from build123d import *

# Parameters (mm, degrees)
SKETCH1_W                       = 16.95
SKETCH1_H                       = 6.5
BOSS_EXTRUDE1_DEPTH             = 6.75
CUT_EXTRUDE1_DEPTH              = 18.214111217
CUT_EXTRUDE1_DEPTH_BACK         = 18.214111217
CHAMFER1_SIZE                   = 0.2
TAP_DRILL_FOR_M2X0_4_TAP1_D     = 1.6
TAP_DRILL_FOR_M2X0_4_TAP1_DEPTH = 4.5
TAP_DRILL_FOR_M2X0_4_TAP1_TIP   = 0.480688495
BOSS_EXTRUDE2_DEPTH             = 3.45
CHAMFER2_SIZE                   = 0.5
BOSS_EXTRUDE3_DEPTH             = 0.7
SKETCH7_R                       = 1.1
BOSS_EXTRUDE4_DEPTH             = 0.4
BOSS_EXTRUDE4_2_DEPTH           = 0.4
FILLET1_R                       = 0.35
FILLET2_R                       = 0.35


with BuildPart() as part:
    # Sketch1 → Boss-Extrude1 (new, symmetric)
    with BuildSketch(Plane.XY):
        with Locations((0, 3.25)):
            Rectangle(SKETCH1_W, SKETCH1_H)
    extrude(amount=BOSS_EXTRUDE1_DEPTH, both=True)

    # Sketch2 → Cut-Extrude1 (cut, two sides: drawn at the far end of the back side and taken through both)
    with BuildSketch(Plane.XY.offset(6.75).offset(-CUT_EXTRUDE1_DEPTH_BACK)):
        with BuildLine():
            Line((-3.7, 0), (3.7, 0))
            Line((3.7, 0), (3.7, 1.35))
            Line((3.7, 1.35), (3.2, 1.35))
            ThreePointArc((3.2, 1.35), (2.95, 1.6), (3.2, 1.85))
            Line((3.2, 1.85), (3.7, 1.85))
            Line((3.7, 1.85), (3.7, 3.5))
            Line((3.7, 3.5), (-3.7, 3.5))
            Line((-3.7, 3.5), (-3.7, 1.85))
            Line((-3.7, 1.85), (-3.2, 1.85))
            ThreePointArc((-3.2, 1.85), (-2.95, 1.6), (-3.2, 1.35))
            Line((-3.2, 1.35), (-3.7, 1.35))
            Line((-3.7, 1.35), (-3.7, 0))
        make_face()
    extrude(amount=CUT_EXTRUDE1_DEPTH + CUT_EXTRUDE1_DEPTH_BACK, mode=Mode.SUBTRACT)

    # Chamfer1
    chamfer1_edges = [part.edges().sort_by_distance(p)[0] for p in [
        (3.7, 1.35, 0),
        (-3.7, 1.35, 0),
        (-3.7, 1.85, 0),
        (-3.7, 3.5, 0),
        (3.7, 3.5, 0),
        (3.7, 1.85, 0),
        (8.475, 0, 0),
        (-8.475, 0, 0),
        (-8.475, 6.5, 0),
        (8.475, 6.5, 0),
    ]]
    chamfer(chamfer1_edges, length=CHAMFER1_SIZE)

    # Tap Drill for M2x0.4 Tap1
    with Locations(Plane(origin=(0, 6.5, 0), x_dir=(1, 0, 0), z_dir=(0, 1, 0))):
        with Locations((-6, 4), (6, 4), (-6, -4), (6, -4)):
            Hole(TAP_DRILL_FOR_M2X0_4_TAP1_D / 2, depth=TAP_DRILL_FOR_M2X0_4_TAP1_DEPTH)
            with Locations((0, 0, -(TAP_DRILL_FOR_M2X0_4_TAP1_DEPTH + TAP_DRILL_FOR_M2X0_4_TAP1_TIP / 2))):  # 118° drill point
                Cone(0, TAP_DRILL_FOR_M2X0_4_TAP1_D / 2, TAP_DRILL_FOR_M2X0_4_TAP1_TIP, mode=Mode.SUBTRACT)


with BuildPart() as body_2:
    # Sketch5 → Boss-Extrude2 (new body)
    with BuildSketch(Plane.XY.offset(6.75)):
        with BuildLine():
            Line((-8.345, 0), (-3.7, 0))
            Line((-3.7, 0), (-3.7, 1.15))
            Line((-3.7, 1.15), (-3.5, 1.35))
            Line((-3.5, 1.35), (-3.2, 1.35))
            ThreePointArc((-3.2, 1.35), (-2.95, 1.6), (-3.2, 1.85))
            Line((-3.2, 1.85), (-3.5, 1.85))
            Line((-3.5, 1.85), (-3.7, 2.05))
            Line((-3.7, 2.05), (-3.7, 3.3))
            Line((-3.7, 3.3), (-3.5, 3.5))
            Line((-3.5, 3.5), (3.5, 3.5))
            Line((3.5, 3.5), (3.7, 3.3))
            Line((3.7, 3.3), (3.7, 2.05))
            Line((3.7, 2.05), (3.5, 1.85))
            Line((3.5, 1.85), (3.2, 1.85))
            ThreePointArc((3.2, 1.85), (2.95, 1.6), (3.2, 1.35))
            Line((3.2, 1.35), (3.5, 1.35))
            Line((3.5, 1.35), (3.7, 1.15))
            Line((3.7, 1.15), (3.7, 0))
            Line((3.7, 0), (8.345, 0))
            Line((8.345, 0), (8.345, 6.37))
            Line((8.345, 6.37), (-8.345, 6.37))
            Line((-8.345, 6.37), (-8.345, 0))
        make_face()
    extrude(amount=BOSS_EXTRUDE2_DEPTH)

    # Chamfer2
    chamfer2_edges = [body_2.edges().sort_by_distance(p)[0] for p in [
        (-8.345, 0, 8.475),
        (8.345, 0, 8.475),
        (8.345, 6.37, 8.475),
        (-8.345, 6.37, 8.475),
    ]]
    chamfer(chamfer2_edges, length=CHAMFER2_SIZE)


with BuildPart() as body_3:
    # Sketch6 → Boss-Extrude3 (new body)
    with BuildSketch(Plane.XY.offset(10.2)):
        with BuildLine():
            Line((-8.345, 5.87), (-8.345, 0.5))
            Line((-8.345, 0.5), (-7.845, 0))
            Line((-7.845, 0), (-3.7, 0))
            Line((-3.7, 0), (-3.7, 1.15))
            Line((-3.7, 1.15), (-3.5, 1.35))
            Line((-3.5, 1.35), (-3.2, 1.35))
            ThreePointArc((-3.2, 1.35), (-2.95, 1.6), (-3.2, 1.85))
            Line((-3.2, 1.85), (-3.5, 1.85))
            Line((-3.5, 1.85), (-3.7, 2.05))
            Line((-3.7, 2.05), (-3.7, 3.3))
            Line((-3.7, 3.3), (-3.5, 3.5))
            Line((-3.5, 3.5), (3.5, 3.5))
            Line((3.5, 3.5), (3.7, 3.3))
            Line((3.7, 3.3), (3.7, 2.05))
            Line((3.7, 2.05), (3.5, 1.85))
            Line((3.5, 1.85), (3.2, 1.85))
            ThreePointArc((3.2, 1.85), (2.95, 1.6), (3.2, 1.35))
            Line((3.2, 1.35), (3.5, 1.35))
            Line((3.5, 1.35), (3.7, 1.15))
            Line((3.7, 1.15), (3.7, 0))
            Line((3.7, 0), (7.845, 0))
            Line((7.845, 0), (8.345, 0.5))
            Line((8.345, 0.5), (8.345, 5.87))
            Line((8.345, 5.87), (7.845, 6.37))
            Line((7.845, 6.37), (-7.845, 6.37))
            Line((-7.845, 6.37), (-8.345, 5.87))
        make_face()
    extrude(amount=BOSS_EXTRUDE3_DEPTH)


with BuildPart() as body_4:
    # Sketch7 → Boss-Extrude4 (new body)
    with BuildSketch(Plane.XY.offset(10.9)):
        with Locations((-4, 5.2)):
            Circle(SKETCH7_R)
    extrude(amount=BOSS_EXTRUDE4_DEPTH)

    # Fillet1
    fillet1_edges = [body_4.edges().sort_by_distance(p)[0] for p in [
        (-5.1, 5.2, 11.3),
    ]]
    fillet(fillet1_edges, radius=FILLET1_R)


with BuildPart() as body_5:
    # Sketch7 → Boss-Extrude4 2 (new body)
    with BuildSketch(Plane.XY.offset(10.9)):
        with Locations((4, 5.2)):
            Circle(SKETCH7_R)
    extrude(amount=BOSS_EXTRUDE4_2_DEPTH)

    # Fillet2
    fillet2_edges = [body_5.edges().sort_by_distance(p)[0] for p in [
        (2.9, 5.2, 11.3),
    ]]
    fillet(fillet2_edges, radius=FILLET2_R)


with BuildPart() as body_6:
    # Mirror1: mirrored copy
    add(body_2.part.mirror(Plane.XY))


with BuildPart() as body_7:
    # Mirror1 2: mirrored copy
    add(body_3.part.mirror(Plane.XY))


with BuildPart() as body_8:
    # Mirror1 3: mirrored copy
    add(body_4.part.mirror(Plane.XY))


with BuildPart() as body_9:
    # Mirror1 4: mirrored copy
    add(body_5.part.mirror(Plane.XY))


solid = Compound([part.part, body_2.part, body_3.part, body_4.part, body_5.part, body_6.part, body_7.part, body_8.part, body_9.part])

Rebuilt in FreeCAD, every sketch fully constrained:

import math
import FreeCAD as App
import Part
import Sketcher

V = App.Vector


def edges_at(feature, points):
    """Names of the edges that pass closest to the given points."""
    edges = feature.Shape.Edges
    near = lambda p: min(range(len(edges)), key=lambda i: edges[i].distToShape(Part.Vertex(*p))[0])
    return sorted({f"Edge{near(p) + 1}" for p in points})

doc = App.newDocument("Part")
body = doc.addObject("PartDesign::Body", "Body")

sketch1 = body.newObject("Sketcher::SketchObject", "Sketch")
sketch1.AttachmentSupport = (doc.getObject("XY_Plane"), [""])
sketch1.MapMode = "FlatFace"
sketch1.addGeometry([
    Part.LineSegment(V(-8.475, 6.5, 0), V(-8.475, 0, 0)),
    Part.LineSegment(V(-8.475, 0, 0), V(8.475, 0, 0)),
    Part.LineSegment(V(8.475, 0, 0), V(8.475, 6.5, 0)),
    Part.LineSegment(V(8.475, 6.5, 0), V(-8.475, 6.5, 0)),
], False)
sketch1.addConstraint([
    Sketcher.Constraint("Coincident", 0, 2, 1, 1),
    Sketcher.Constraint("Coincident", 1, 2, 2, 1),
    Sketcher.Constraint("Coincident", 2, 2, 3, 1),
    Sketcher.Constraint("Coincident", 3, 2, 0, 1),
    Sketcher.Constraint("Vertical", 0),
    Sketcher.Constraint("Horizontal", 1),
    Sketcher.Constraint("Vertical", 2),
    Sketcher.Constraint("Horizontal", 3),
    Sketcher.Constraint("Symmetric", 0, 2, 1, 2, -1, 1),
    Sketcher.Constraint("DistanceY", 0, 2, 0, 1, 6.5),
    Sketcher.Constraint("DistanceX", 1, 1, 1, 2, 16.95),
])
pad1 = body.newObject("PartDesign::Pad", "Pad")
pad1.Profile = sketch1
pad1.Length = 13.5
pad1.Midplane = True

sketch2 = body.newObject("Sketcher::SketchObject", "Sketch001")
sketch2.AttachmentSupport = (doc.getObject("XY_Plane"), [""])
sketch2.MapMode = "FlatFace"
sketch2.AttachmentOffset = App.Placement(V(0, 0, 6.75), App.Rotation())
sketch2.addGeometry([
    Part.LineSegment(V(-3.7, 0, 0), V(3.7, 0, 0)),
    Part.LineSegment(V(3.7, 0, 0), V(3.7, 1.35, 0)),
    Part.LineSegment(V(3.7, 1.35, 0), V(3.2, 1.35, 0)),
    Part.ArcOfCircle(Part.Circle(V(3.2, 1.6, 0), V(0, 0, 1), 0.25), math.radians(90), math.radians(270)),
    Part.LineSegment(V(3.2, 1.85, 0), V(3.7, 1.85, 0)),
    Part.LineSegment(V(3.7, 1.85, 0), V(3.7, 3.5, 0)),
    Part.LineSegment(V(3.7, 3.5, 0), V(-3.7, 3.5, 0)),
    Part.LineSegment(V(-3.7, 3.5, 0), V(-3.7, 1.85, 0)),
    Part.LineSegment(V(-3.7, 1.85, 0), V(-3.2, 1.85, 0)),
    Part.ArcOfCircle(Part.Circle(V(-3.2, 1.6, 0), V(0, 0, 1), 0.25), math.radians(-90), math.radians(90)),
    Part.LineSegment(V(-3.2, 1.35, 0), V(-3.7, 1.35, 0)),
    Part.LineSegment(V(-3.7, 1.35, 0), V(-3.7, 0, 0)),
], False)
sketch2.addConstraint([
    Sketcher.Constraint("Coincident", 0, 2, 1, 1),
    Sketcher.Constraint("Coincident", 1, 2, 2, 1),
    Sketcher.Constraint("Tangent", 2, 2, 3, 2),
    Sketcher.Constraint("Tangent", 3, 1, 4, 1),
    Sketcher.Constraint("Coincident", 4, 2, 5, 1),
    Sketcher.Constraint("Coincident", 5, 2, 6, 1),
    Sketcher.Constraint("Coincident", 6, 2, 7, 1),
    Sketcher.Constraint("Coincident", 7, 2, 8, 1),
    Sketcher.Constraint("Tangent", 8, 2, 9, 2),
    Sketcher.Constraint("Tangent", 9, 1, 10, 1),
    Sketcher.Constraint("Coincident", 10, 2, 11, 1),
    Sketcher.Constraint("Coincident", 11, 2, 0, 1),
    Sketcher.Constraint("Horizontal", 0),
    Sketcher.Constraint("Vertical", 1),
    Sketcher.Constraint("Horizontal", 2),
    Sketcher.Constraint("Horizontal", 4),
    Sketcher.Constraint("Vertical", 5),
    Sketcher.Constraint("Horizontal", 6),
    Sketcher.Constraint("Vertical", 7),
    Sketcher.Constraint("Horizontal", 8),
    Sketcher.Constraint("Horizontal", 10),
    Sketcher.Constraint("Vertical", 11),
    Sketcher.Constraint("Equal", 3, 9),
    Sketcher.Constraint("Symmetric", 0, 2, 11, 2, -1, 1),
    Sketcher.Constraint("Symmetric", 3, 3, 9, 3, -2),
    Sketcher.Constraint("Vertical", 1, 2, 4, 2),
    Sketcher.Constraint("Vertical", 7, 2, 10, 2),
    Sketcher.Constraint("Radius", 3, 0.25),
    Sketcher.Constraint("DistanceX", 0, 1, 0, 2, 7.4),
    Sketcher.Constraint("DistanceX", 2, 2, 2, 1, 0.5),
    Sketcher.Constraint("DistanceY", 1, 1, 1, 2, 1.35),
    Sketcher.Constraint("DistanceY", 5, 1, 5, 2, 1.65),
])
pocket1 = body.newObject("PartDesign::Pocket", "Pocket")
pocket1.Profile = sketch2
pocket1.Type = "ThroughAll"
pocket1.Midplane = True
doc.recompute()

chamfer = body.newObject("PartDesign::Chamfer", "Chamfer")
chamfer.Base = (pocket1, edges_at(pocket1, [
    (3.7, 1.35, 0),
    (-3.7, 1.35, 0),
    (-3.7, 1.85, 0),
    (-3.7, 3.5, 0),
    (3.7, 3.5, 0),
    (3.7, 1.85, 0),
    (8.475, 0, 0),
    (-8.475, 0, 0),
    (-8.475, 6.5, 0),
    (8.475, 6.5, 0),
]))
chamfer.Size = 0.2

sketch3 = body.newObject("Sketcher::SketchObject", "Sketch002")
sketch3.AttachmentSupport = (doc.getObject("XZ_Plane"), [""])
sketch3.MapMode = "FlatFace"
sketch3.AttachmentOffset = App.Placement(V(0, 0, -6.5), App.Rotation())
sketch3.addGeometry([
    Part.Circle(V(-6, -4, 0), V(0, 0, 1), 0.8),
    Part.Circle(V(6, -4, 0), V(0, 0, 1), 0.8),
    Part.Circle(V(-6, 4, 0), V(0, 0, 1), 0.8),
    Part.Circle(V(6, 4, 0), V(0, 0, 1), 0.8),
], False)
sketch3.addConstraint([
    Sketcher.Constraint("Equal", 0, 1),
    Sketcher.Constraint("Equal", 1, 2),
    Sketcher.Constraint("Equal", 2, 3),
    Sketcher.Constraint("Symmetric", 1, 3, 2, 3, -1, 1),
    Sketcher.Constraint("Symmetric", 0, 3, 3, 3, -1, 1),
    Sketcher.Constraint("Symmetric", 0, 3, 1, 3, -2),
    Sketcher.Constraint("Diameter", 0, 1.6),
    Sketcher.Constraint("DistanceX", 0, 3, -1, 1, 6.0),
    Sketcher.Constraint("DistanceY", 0, 3, -1, 1, 4.0),
])
doc.recompute()
hole = body.newObject("PartDesign::Hole", "Hole")
hole.Profile = sketch3
hole.ThreadType = "None"
hole.Diameter = 1.6
hole.DepthType = "Dimension"
hole.Depth = 4.5
hole.DrillPoint = "Angled"
hole.DrillPointAngle = 118
hole.Reversed = True
body2 = doc.addObject("PartDesign::Body", "Body001")

sketch4 = body2.newObject("Sketcher::SketchObject", "Sketch003")
sketch4.AttachmentSupport = (doc.getObject("XY_Plane001"), [""])
sketch4.MapMode = "FlatFace"
sketch4.AttachmentOffset = App.Placement(V(0, 0, 6.75), App.Rotation())
sketch4.addGeometry([
    Part.LineSegment(V(-8.345, 0, 0), V(-3.7, 0, 0)),
    Part.LineSegment(V(-3.7, 0, 0), V(-3.7, 1.15, 0)),
    Part.LineSegment(V(-3.7, 1.15, 0), V(-3.5, 1.35, 0)),
    Part.LineSegment(V(-3.5, 1.35, 0), V(-3.2, 1.35, 0)),
    Part.ArcOfCircle(Part.Circle(V(-3.2, 1.6, 0), V(0, 0, 1), 0.25), math.radians(-90), math.radians(90)),
    Part.LineSegment(V(-3.2, 1.85, 0), V(-3.5, 1.85, 0)),
    Part.LineSegment(V(-3.5, 1.85, 0), V(-3.7, 2.05, 0)),
    Part.LineSegment(V(-3.7, 2.05, 0), V(-3.7, 3.3, 0)),
    Part.LineSegment(V(-3.7, 3.3, 0), V(-3.5, 3.5, 0)),
    Part.LineSegment(V(-3.5, 3.5, 0), V(3.5, 3.5, 0)),
    Part.LineSegment(V(3.5, 3.5, 0), V(3.7, 3.3, 0)),
    Part.LineSegment(V(3.7, 3.3, 0), V(3.7, 2.05, 0)),
    Part.LineSegment(V(3.7, 2.05, 0), V(3.5, 1.85, 0)),
    Part.LineSegment(V(3.5, 1.85, 0), V(3.2, 1.85, 0)),
    Part.ArcOfCircle(Part.Circle(V(3.2, 1.6, 0), V(0, 0, 1), 0.25), math.radians(90), math.radians(270)),
    Part.LineSegment(V(3.2, 1.35, 0), V(3.5, 1.35, 0)),
    Part.LineSegment(V(3.5, 1.35, 0), V(3.7, 1.15, 0)),
    Part.LineSegment(V(3.7, 1.15, 0), V(3.7, 0, 0)),
    Part.LineSegment(V(3.7, 0, 0), V(8.345, 0, 0)),
    Part.LineSegment(V(8.345, 0, 0), V(8.345, 6.37, 0)),
    Part.LineSegment(V(8.345, 6.37, 0), V(-8.345, 6.37, 0)),
    Part.LineSegment(V(-8.345, 6.37, 0), V(-8.345, 0, 0)),
], False)
sketch4.addConstraint([
    Sketcher.Constraint("Coincident", 0, 2, 1, 1),
    Sketcher.Constraint("Coincident", 1, 2, 2, 1),
    Sketcher.Constraint("Coincident", 2, 2, 3, 1),
    Sketcher.Constraint("Tangent", 3, 2, 4, 1),
    Sketcher.Constraint("Tangent", 4, 2, 5, 1),
    Sketcher.Constraint("Coincident", 5, 2, 6, 1),
    Sketcher.Constraint("Coincident", 6, 2, 7, 1),
    Sketcher.Constraint("Coincident", 7, 2, 8, 1),
    Sketcher.Constraint("Coincident", 8, 2, 9, 1),
    Sketcher.Constraint("Coincident", 9, 2, 10, 1),
    Sketcher.Constraint("Coincident", 10, 2, 11, 1),
    Sketcher.Constraint("Coincident", 11, 2, 12, 1),
    Sketcher.Constraint("Coincident", 12, 2, 13, 1),
    Sketcher.Constraint("Tangent", 13, 2, 14, 1),
    Sketcher.Constraint("Tangent", 14, 2, 15, 1),
    Sketcher.Constraint("Coincident", 15, 2, 16, 1),
    Sketcher.Constraint("Coincident", 16, 2, 17, 1),
    Sketcher.Constraint("Coincident", 17, 2, 18, 1),
    Sketcher.Constraint("Coincident", 18, 2, 19, 1),
    Sketcher.Constraint("Coincident", 19, 2, 20, 1),
    Sketcher.Constraint("Coincident", 20, 2, 21, 1),
    Sketcher.Constraint("Coincident", 21, 2, 0, 1),
    Sketcher.Constraint("Horizontal", 0),
    Sketcher.Constraint("Vertical", 1),
    Sketcher.Constraint("Horizontal", 3),
    Sketcher.Constraint("Horizontal", 5),
    Sketcher.Constraint("Vertical", 7),
    Sketcher.Constraint("Horizontal", 9),
    Sketcher.Constraint("Vertical", 11),
    Sketcher.Constraint("Horizontal", 13),
    Sketcher.Constraint("Horizontal", 15),
    Sketcher.Constraint("Vertical", 17),
    Sketcher.Constraint("Horizontal", 18),
    Sketcher.Constraint("Vertical", 19),
    Sketcher.Constraint("Horizontal", 20),
    Sketcher.Constraint("Vertical", 21),
    Sketcher.Constraint("Equal", 4, 14),
    Sketcher.Constraint("Symmetric", 0, 2, 17, 2, -1, 1),
    Sketcher.Constraint("Symmetric", 4, 3, 14, 3, -2),
    Sketcher.Constraint("Symmetric", 7, 2, 10, 2, -2),
    Sketcher.Constraint("Symmetric", 18, 2, 21, 2, -2),
    Sketcher.Constraint("Perpendicular", 2, 6),
    Sketcher.Constraint("Perpendicular", 6, 8),
    Sketcher.Constraint("Perpendicular", 8, 10),
    Sketcher.Constraint("Perpendicular", 10, 12),
    Sketcher.Constraint("Perpendicular", 12, 16),
    Sketcher.Constraint("Horizontal", 6, 2, 11, 2),
    Sketcher.Constraint("Horizontal", 1, 2, 16, 2),
    Sketcher.Constraint("Vertical", 2, 2, 5, 2),
    Sketcher.Constraint("Vertical", 1, 2, 6, 2),
    Sketcher.Constraint("Vertical", 5, 2, 8, 2),
    Sketcher.Constraint("Vertical", 9, 2, 12, 2),
    Sketcher.Constraint("DistanceX", 9, 1, 9, 2, 7.0),
    Sketcher.Constraint("Radius", 4, 0.25),
    Sketcher.Constraint("DistanceX", 3, 1, 3, 2, 0.3),
    Sketcher.Constraint("DistanceX", 20, 2, 20, 1, 16.69),
    Sketcher.Constraint("DistanceY", 1, 1, 1, 2, 1.15),
    Sketcher.Constraint("DistanceY", 7, 1, 7, 2, 1.25),
    Sketcher.Constraint("DistanceY", 19, 1, 19, 2, 6.37),
    Sketcher.Constraint("DistanceY", -1, 1, 4, 3, 1.6),
])
pad2 = body2.newObject("PartDesign::Pad", "Pad001")
pad2.Profile = sketch4
pad2.Length = 3.45
doc.recompute()

chamfer2 = body2.newObject("PartDesign::Chamfer", "Chamfer001")
chamfer2.Base = (pad2, edges_at(pad2, [
    (-8.345, 0, 8.475),
    (8.345, 0, 8.475),
    (8.345, 6.37, 8.475),
    (-8.345, 6.37, 8.475),
]))
chamfer2.Size = 0.5
body3 = doc.addObject("PartDesign::Body", "Body002")

sketch5 = body3.newObject("Sketcher::SketchObject", "Sketch004")
sketch5.AttachmentSupport = (doc.getObject("XY_Plane002"), [""])
sketch5.MapMode = "FlatFace"
sketch5.AttachmentOffset = App.Placement(V(0, 0, 10.2), App.Rotation())
sketch5.addGeometry([
    Part.LineSegment(V(-8.345, 5.87, 0), V(-8.345, 0.5, 0)),
    Part.LineSegment(V(-8.345, 0.5, 0), V(-7.845, 0, 0)),
    Part.LineSegment(V(-7.845, 0, 0), V(-3.7, 0, 0)),
    Part.LineSegment(V(-3.7, 0, 0), V(-3.7, 1.15, 0)),
    Part.LineSegment(V(-3.7, 1.15, 0), V(-3.5, 1.35, 0)),
    Part.LineSegment(V(-3.5, 1.35, 0), V(-3.2, 1.35, 0)),
    Part.ArcOfCircle(Part.Circle(V(-3.2, 1.6, 0), V(0, 0, 1), 0.25), math.radians(-90), math.radians(90)),
    Part.LineSegment(V(-3.2, 1.85, 0), V(-3.5, 1.85, 0)),
    Part.LineSegment(V(-3.5, 1.85, 0), V(-3.7, 2.05, 0)),
    Part.LineSegment(V(-3.7, 2.05, 0), V(-3.7, 3.3, 0)),
    Part.LineSegment(V(-3.7, 3.3, 0), V(-3.5, 3.5, 0)),
    Part.LineSegment(V(-3.5, 3.5, 0), V(3.5, 3.5, 0)),
    Part.LineSegment(V(3.5, 3.5, 0), V(3.7, 3.3, 0)),
    Part.LineSegment(V(3.7, 3.3, 0), V(3.7, 2.05, 0)),
    Part.LineSegment(V(3.7, 2.05, 0), V(3.5, 1.85, 0)),
    Part.LineSegment(V(3.5, 1.85, 0), V(3.2, 1.85, 0)),
    Part.ArcOfCircle(Part.Circle(V(3.2, 1.6, 0), V(0, 0, 1), 0.25), math.radians(90), math.radians(270)),
    Part.LineSegment(V(3.2, 1.35, 0), V(3.5, 1.35, 0)),
    Part.LineSegment(V(3.5, 1.35, 0), V(3.7, 1.15, 0)),
    Part.LineSegment(V(3.7, 1.15, 0), V(3.7, 0, 0)),
    Part.LineSegment(V(3.7, 0, 0), V(7.845, 0, 0)),
    Part.LineSegment(V(7.845, 0, 0), V(8.345, 0.5, 0)),
    Part.LineSegment(V(8.345, 0.5, 0), V(8.345, 5.87, 0)),
    Part.LineSegment(V(8.345, 5.87, 0), V(7.845, 6.37, 0)),
    Part.LineSegment(V(7.845, 6.37, 0), V(-7.845, 6.37, 0)),
    Part.LineSegment(V(-7.845, 6.37, 0), V(-8.345, 5.87, 0)),
], False)
sketch5.addConstraint([
    Sketcher.Constraint("Coincident", 0, 2, 1, 1),
    Sketcher.Constraint("Coincident", 1, 2, 2, 1),
    Sketcher.Constraint("Coincident", 2, 2, 3, 1),
    Sketcher.Constraint("Coincident", 3, 2, 4, 1),
    Sketcher.Constraint("Coincident", 4, 2, 5, 1),
    Sketcher.Constraint("Tangent", 5, 2, 6, 1),
    Sketcher.Constraint("Tangent", 6, 2, 7, 1),
    Sketcher.Constraint("Coincident", 7, 2, 8, 1),
    Sketcher.Constraint("Coincident", 8, 2, 9, 1),
    Sketcher.Constraint("Coincident", 9, 2, 10, 1),
    Sketcher.Constraint("Coincident", 10, 2, 11, 1),
    Sketcher.Constraint("Coincident", 11, 2, 12, 1),
    Sketcher.Constraint("Coincident", 12, 2, 13, 1),
    Sketcher.Constraint("Coincident", 13, 2, 14, 1),
    Sketcher.Constraint("Coincident", 14, 2, 15, 1),
    Sketcher.Constraint("Tangent", 15, 2, 16, 1),
    Sketcher.Constraint("Tangent", 16, 2, 17, 1),
    Sketcher.Constraint("Coincident", 17, 2, 18, 1),
    Sketcher.Constraint("Coincident", 18, 2, 19, 1),
    Sketcher.Constraint("Coincident", 19, 2, 20, 1),
    Sketcher.Constraint("Coincident", 20, 2, 21, 1),
    Sketcher.Constraint("Coincident", 21, 2, 22, 1),
    Sketcher.Constraint("Coincident", 22, 2, 23, 1),
    Sketcher.Constraint("Coincident", 23, 2, 24, 1),
    Sketcher.Constraint("Coincident", 24, 2, 25, 1),
    Sketcher.Constraint("Coincident", 25, 2, 0, 1),
    Sketcher.Constraint("Vertical", 0),
    Sketcher.Constraint("Horizontal", 2),
    Sketcher.Constraint("Vertical", 3),
    Sketcher.Constraint("Horizontal", 5),
    Sketcher.Constraint("Horizontal", 7),
    Sketcher.Constraint("Vertical", 9),
    Sketcher.Constraint("Horizontal", 11),
    Sketcher.Constraint("Vertical", 13),
    Sketcher.Constraint("Horizontal", 15),
    Sketcher.Constraint("Horizontal", 17),
    Sketcher.Constraint("Vertical", 19),
    Sketcher.Constraint("Horizontal", 20),
    Sketcher.Constraint("Vertical", 22),
    Sketcher.Constraint("Horizontal", 24),
    Sketcher.Constraint("Equal", 6, 16),
    Sketcher.Constraint("Symmetric", 2, 2, 19, 2, -1, 1),
    Sketcher.Constraint("Symmetric", 6, 3, 16, 3, -2),
    Sketcher.Constraint("Symmetric", 9, 2, 12, 2, -2),
    Sketcher.Constraint("Symmetric", 1, 2, 20, 2, -2),
    Sketcher.Constraint("Symmetric", 0, 2, 21, 2, -2),
    Sketcher.Constraint("Perpendicular", 1, 4),
    Sketcher.Constraint("Perpendicular", 4, 8),
    Sketcher.Constraint("Perpendicular", 8, 10),
    Sketcher.Constraint("Perpendicular", 10, 12),
    Sketcher.Constraint("Perpendicular", 12, 14),
    Sketcher.Constraint("Perpendicular", 14, 18),
    Sketcher.Constraint("Perpendicular", 18, 21),
    Sketcher.Constraint("Perpendicular", 21, 23),
    Sketcher.Constraint("Perpendicular", 23, 25),
    Sketcher.Constraint("Horizontal", 8, 2, 13, 2),
    Sketcher.Constraint("Horizontal", 3, 2, 18, 2),
    Sketcher.Constraint("Horizontal", 22, 2, 25, 2),
    Sketcher.Constraint("Vertical", 4, 2, 7, 2),
    Sketcher.Constraint("Vertical", 3, 2, 8, 2),
    Sketcher.Constraint("Vertical", 7, 2, 10, 2),
    Sketcher.Constraint("Vertical", 20, 2, 23, 2),
    Sketcher.Constraint("DistanceX", 11, 1, 11, 2, 7.0),
    Sketcher.Constraint("Radius", 6, 0.25),
    Sketcher.Constraint("DistanceX", 5, 1, 5, 2, 0.3),
    Sketcher.Constraint("DistanceX", 24, 2, 24, 1, 15.69),
    Sketcher.Constraint("DistanceY", 0, 2, 0, 1, 5.37),
    Sketcher.Constraint("DistanceY", 3, 1, 3, 2, 1.15),
    Sketcher.Constraint("DistanceY", 9, 1, 9, 2, 1.25),
    Sketcher.Constraint("DistanceY", -1, 1, 6, 3, 1.6),
    Sketcher.Constraint("DistanceY", -1, 1, 0, 2, 0.5),
])
pad3 = body3.newObject("PartDesign::Pad", "Pad002")
pad3.Profile = sketch5
pad3.Length = 0.7
body4 = doc.addObject("PartDesign::Body", "Body003")

sketch6 = body4.newObject("Sketcher::SketchObject", "Sketch005")
sketch6.AttachmentSupport = (doc.getObject("XY_Plane003"), [""])
sketch6.MapMode = "FlatFace"
sketch6.AttachmentOffset = App.Placement(V(0, 0, 10.9), App.Rotation())
sketch6.addGeometry(Part.Circle(V(-4, 5.2, 0), V(0, 0, 1), 1.1), False)
sketch6.addConstraint([
    Sketcher.Constraint("Diameter", 0, 2.2),
    Sketcher.Constraint("DistanceX", 0, 3, -1, 1, 4.0),
    Sketcher.Constraint("DistanceY", -1, 1, 0, 3, 5.2),
])
pad4 = body4.newObject("PartDesign::Pad", "Pad003")
pad4.Profile = sketch6
pad4.Length = 0.4
doc.recompute()

fillet = body4.newObject("PartDesign::Fillet", "Fillet")
fillet.Base = (pad4, edges_at(pad4, [(-5.1, 5.2, 11.3)]))
fillet.Radius = 0.35
body5 = doc.addObject("PartDesign::Body", "Body004")

sketch7 = body5.newObject("Sketcher::SketchObject", "Sketch006")
sketch7.AttachmentSupport = (doc.getObject("XY_Plane004"), [""])
sketch7.MapMode = "FlatFace"
sketch7.AttachmentOffset = App.Placement(V(0, 0, 10.9), App.Rotation())
sketch7.addGeometry(Part.Circle(V(4, 5.2, 0), V(0, 0, 1), 1.1), False)
sketch7.addConstraint([
    Sketcher.Constraint("Diameter", 0, 2.2),
    Sketcher.Constraint("DistanceX", -1, 1, 0, 3, 4.0),
    Sketcher.Constraint("DistanceY", -1, 1, 0, 3, 5.2),
])
pad5 = body5.newObject("PartDesign::Pad", "Pad004")
pad5.Profile = sketch7
pad5.Length = 0.4
doc.recompute()

fillet2 = body5.newObject("PartDesign::Fillet", "Fillet001")
fillet2.Base = (pad5, edges_at(pad5, [(2.9, 5.2, 11.3)]))
fillet2.Radius = 0.35
body6 = doc.addObject("PartDesign::Body", "Body005")
doc.recompute()

mirroring = doc.addObject("Part::Mirroring", "Mirroring")
mirroring.Source = body2
mirroring.Base = V(0, 0, 0)
mirroring.Normal = V(0, 0, 1)
body6.BaseFeature = mirroring
doc.recompute()
body7 = doc.addObject("PartDesign::Body", "Body006")
doc.recompute()

mirroring2 = doc.addObject("Part::Mirroring", "Mirroring001")
mirroring2.Source = body3
mirroring2.Base = V(0, 0, 0)
mirroring2.Normal = V(0, 0, 1)
body7.BaseFeature = mirroring2
doc.recompute()
body8 = doc.addObject("PartDesign::Body", "Body007")
doc.recompute()

mirroring3 = doc.addObject("Part::Mirroring", "Mirroring002")
mirroring3.Source = body4
mirroring3.Base = V(0, 0, 0)
mirroring3.Normal = V(0, 0, 1)
body8.BaseFeature = mirroring3
doc.recompute()
body9 = doc.addObject("PartDesign::Body", "Body008")
doc.recompute()

mirroring4 = doc.addObject("Part::Mirroring", "Mirroring003")
mirroring4.Source = body5
mirroring4.Base = V(0, 0, 0)
mirroring4.Normal = V(0, 0, 1)
body9.BaseFeature = mirroring4
doc.recompute()
mirroring.Visibility = False
mirroring2.Visibility = False
mirroring3.Visibility = False
mirroring4.Visibility = False

doc.recompute()
